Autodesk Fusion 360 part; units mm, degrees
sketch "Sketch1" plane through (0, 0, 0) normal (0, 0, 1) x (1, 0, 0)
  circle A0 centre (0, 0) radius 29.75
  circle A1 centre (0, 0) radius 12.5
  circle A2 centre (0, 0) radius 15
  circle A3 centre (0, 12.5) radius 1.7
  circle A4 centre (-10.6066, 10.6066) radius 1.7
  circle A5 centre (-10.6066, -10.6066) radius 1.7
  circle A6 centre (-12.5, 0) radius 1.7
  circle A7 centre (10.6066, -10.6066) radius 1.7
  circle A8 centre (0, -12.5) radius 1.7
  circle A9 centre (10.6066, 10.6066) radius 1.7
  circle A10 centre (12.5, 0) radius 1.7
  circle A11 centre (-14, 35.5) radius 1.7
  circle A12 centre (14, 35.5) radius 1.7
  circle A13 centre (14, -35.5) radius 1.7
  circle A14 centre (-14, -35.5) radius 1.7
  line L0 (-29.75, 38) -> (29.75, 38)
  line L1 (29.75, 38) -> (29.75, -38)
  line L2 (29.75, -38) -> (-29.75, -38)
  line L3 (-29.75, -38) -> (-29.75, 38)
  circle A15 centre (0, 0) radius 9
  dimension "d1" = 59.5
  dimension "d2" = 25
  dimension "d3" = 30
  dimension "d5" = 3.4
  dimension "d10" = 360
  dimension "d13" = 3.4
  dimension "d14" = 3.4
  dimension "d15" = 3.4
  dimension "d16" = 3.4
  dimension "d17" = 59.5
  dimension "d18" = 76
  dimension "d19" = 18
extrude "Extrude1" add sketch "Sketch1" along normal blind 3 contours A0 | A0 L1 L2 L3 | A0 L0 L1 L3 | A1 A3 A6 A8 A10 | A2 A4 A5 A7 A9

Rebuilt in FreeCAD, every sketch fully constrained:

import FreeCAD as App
import Part
import Sketcher
Q = App.Units.Quantity


def add_polygon(sketch, points):
    """Adds a closed chain of lines whose ends are joined by coincident constraints."""
    first, n = sketch.GeometryCount, len(points)
    for a, b in zip(points, points[1:] + points[:1]):
        sketch.addGeometry(Part.LineSegment(App.Vector(*a, 0), App.Vector(*b, 0)), False)
    for i in range(n):
        sketch.addConstraint(Sketcher.Constraint("Coincident", first + i, 2, first + (i + 1) % n, 1))

doc = App.newDocument("Part")
body = doc.addObject("PartDesign::Body", "Body")

# Sketch on XY plane
sketch1 = body.newObject("Sketcher::SketchObject", "Sketch")
sketch1.AttachmentSupport = (doc.getObject("XY_Plane"), [""])
sketch1.MapMode = "FlatFace"
add_polygon(sketch1, [(29.8, -38), (29.8, 38), (-29.8, 38), (-29.8, -38)])  # lines 0-3
sketch1.addGeometry(Part.Circle(App.Vector(10.6, 10.6, 0), App.Vector(0, 0, 1), 1.7), False)  # 4
sketch1.addGeometry(Part.Circle(App.Vector(-10.6, 10.6, 0), App.Vector(0, 0, 1), 1.7), False)  # 5
sketch1.addGeometry(Part.Circle(App.Vector(-10.6, -10.6, 0), App.Vector(0, 0, 1), 1.7), False)  # 6
sketch1.addGeometry(Part.Circle(App.Vector(10.6, -10.6, 0), App.Vector(0, 0, 1), 1.7), False)  # 7
sketch1.addGeometry(Part.Circle(App.Vector(14, -35.5, 0), App.Vector(0, 0, 1), 1.7), False)  # 8
sketch1.addGeometry(Part.Circle(App.Vector(-14, -35.5, 0), App.Vector(0, 0, 1), 1.7), False)  # 9
sketch1.addGeometry(Part.Circle(App.Vector(14, 35.5, 0), App.Vector(0, 0, 1), 1.7), False)  # 10
sketch1.addGeometry(Part.Circle(App.Vector(-14, 35.5, 0), App.Vector(0, 0, 1), 1.7), False)  # 11
sketch1.addGeometry(Part.Circle(App.Vector(0, -12.5, 0), App.Vector(0, 0, 1), 1.7), False)  # 12
sketch1.addGeometry(Part.Circle(App.Vector(12.5, 0, 0), App.Vector(0, 0, 1), 1.7), False)  # 13
sketch1.addGeometry(Part.Circle(App.Vector(0, 12.5, 0), App.Vector(0, 0, 1), 1.7), False)  # 14
sketch1.addGeometry(Part.Circle(App.Vector(-12.5, 0, 0), App.Vector(0, 0, 1), 1.7), False)  # 15
sketch1.addGeometry(Part.Circle(App.Vector(0, 0, 0), App.Vector(0, 0, 1), 9), False)  # 16
sketch1.addConstraint([
    Sketcher.Constraint("Vertical", 0),
    Sketcher.Constraint("Horizontal", 1),
    Sketcher.Constraint("Vertical", 2),
    Sketcher.Constraint("Horizontal", 3),
    Sketcher.Constraint("Coincident", 16, 3, -1, 1),
    Sketcher.Constraint("Equal", 4, 5),
    Sketcher.Constraint("Equal", 5, 6),
    Sketcher.Constraint("Equal", 6, 7),
    Sketcher.Constraint("Equal", 7, 8),
    Sketcher.Constraint("Equal", 8, 9),
    Sketcher.Constraint("Equal", 9, 10),
    Sketcher.Constraint("Equal", 10, 11),
    Sketcher.Constraint("Equal", 11, 12),
    Sketcher.Constraint("Equal", 12, 13),
    Sketcher.Constraint("Equal", 13, 14),
    Sketcher.Constraint("Equal", 14, 15),
    Sketcher.Constraint("Symmetric", 4, 3, 6, 3, -1, 1),
    Sketcher.Constraint("Symmetric", 5, 3, 7, 3, -1, 1),
    Sketcher.Constraint("Symmetric", 9, 3, 10, 3, -1, 1),
    Sketcher.Constraint("Symmetric", 8, 3, 11, 3, -1, 1),
    Sketcher.Constraint("Symmetric", 12, 3, 14, 3, -1, 1),
    Sketcher.Constraint("Symmetric", 13, 3, 15, 3, -1, 1),
    Sketcher.Constraint("Symmetric", 0, 2, 2, 2, -1, 1),
    Sketcher.Constraint("Symmetric", 4, 3, 5, 3, -2),
    Sketcher.Constraint("Symmetric", 8, 3, 9, 3, -2),
    Sketcher.Constraint("PointOnObject", 12, 3, -2),
    Sketcher.Constraint("PointOnObject", 13, 3, -1),
    Sketcher.Constraint("Diameter", 16, Q("18 mm")),
    Sketcher.Constraint("Diameter", 4, Q("3.4 mm")),
    Sketcher.Constraint("DistanceY", 0, 1, 0, 2, Q("76 mm")),
    Sketcher.Constraint("DistanceX", 1, 2, 1, 1, Q("59.5 mm")),
    Sketcher.Constraint("DistanceY", 12, 3, 14, 3, Q("25 mm")),
    Sketcher.Constraint("DistanceX", 15, 3, 13, 3, Q("25 mm")),
    Sketcher.Constraint("DistanceX", -1, 1, 8, 3, Q("14 mm")),
    Sketcher.Constraint("DistanceY", 8, 3, 10, 3, Q("71 mm")),
    Sketcher.Constraint("DistanceX", -1, 1, 4, 3, Q("10.6066 mm")),
    Sketcher.Constraint("DistanceY", -1, 1, 4, 3, Q("10.6066 mm")),
])
pad1 = body.newObject("PartDesign::Pad", "Pad")
pad1.Profile = sketch1
pad1.Length = 3

doc.recompute()
